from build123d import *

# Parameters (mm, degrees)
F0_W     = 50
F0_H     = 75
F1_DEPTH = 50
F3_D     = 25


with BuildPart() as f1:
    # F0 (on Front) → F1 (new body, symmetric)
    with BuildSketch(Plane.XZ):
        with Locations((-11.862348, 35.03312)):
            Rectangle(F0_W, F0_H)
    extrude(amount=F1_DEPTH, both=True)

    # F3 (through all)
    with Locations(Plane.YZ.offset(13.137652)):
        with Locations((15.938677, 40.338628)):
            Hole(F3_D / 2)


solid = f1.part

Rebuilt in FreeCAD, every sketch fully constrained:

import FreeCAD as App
import Part
import Sketcher
from FreeCAD import Vector
Q = App.Units.Quantity

doc = App.newDocument("Part")
body = doc.addObject("PartDesign::Body", "Body")

sketch1 = body.newObject("Sketcher::SketchObject", "Sketch")
sketch1.AttachmentSupport = (doc.getObject("XZ_Plane"), [""])
sketch1.MapMode = "FlatFace"
sketch1.addGeometry([
    Part.LineSegment(Vector(-36.862348, 72.53312, 0), Vector(-36.862348, -2.46688, 0)),
    Part.LineSegment(Vector(-36.862348, -2.46688, 0), Vector(13.137652, -2.46688, 0)),
    Part.LineSegment(Vector(13.137652, -2.46688, 0), Vector(13.137652, 72.53312, 0)),
    Part.LineSegment(Vector(13.137652, 72.53312, 0), Vector(-36.862348, 72.53312, 0)),
], False)
sketch1.addConstraint([
    Sketcher.Constraint("Coincident", 0, 2, 1, 1),
    Sketcher.Constraint("Coincident", 1, 2, 2, 1),
    Sketcher.Constraint("Coincident", 2, 2, 3, 1),
    Sketcher.Constraint("Coincident", 3, 2, 0, 1),
    Sketcher.Constraint("Vertical", 0),
    Sketcher.Constraint("Horizontal", 1),
    Sketcher.Constraint("Vertical", 2),
    Sketcher.Constraint("Horizontal", 3),
    Sketcher.Constraint("DistanceX", 1, 1, 1, 2, Q("50 mm")),
    Sketcher.Constraint("DistanceY", 0, 2, 0, 1, Q("75 mm")),
    Sketcher.Constraint("DistanceY", 0, 2, -1, 1, Q("2.46688 mm")),
    Sketcher.Constraint("DistanceX", -1, 1, 1, 2, Q("13.137652 mm")),
])
pad1 = body.newObject("PartDesign::Pad", "Pad")
pad1.Profile = sketch1
pad1.Length = 100
pad1.Midplane = True

sketch2 = body.newObject("Sketcher::SketchObject", "Sketch001")
sketch2.AttachmentSupport = (doc.getObject("YZ_Plane"), [""])
sketch2.MapMode = "FlatFace"
sketch2.AttachmentOffset = App.Placement(Vector(0, 0, 13.137652), App.Rotation())
sketch2.addGeometry(Part.Circle(Vector(15.938677, 40.338628, 0), Vector(0, 0, 1), 12.5), False)
sketch2.addConstraint([
    Sketcher.Constraint("Diameter", 0, Q("25 mm")),
    Sketcher.Constraint("DistanceX", -1, 1, 0, 3, Q("15.938677 mm")),
    Sketcher.Constraint("DistanceY", -1, 1, 0, 3, Q("40.338628 mm")),
])
doc.recompute()
hole = body.newObject("PartDesign::Hole", "Hole")
hole.Profile = sketch2
hole.ThreadType = "None"
hole.Diameter = 25
hole.DepthType = "ThroughAll"

doc.recompute()
